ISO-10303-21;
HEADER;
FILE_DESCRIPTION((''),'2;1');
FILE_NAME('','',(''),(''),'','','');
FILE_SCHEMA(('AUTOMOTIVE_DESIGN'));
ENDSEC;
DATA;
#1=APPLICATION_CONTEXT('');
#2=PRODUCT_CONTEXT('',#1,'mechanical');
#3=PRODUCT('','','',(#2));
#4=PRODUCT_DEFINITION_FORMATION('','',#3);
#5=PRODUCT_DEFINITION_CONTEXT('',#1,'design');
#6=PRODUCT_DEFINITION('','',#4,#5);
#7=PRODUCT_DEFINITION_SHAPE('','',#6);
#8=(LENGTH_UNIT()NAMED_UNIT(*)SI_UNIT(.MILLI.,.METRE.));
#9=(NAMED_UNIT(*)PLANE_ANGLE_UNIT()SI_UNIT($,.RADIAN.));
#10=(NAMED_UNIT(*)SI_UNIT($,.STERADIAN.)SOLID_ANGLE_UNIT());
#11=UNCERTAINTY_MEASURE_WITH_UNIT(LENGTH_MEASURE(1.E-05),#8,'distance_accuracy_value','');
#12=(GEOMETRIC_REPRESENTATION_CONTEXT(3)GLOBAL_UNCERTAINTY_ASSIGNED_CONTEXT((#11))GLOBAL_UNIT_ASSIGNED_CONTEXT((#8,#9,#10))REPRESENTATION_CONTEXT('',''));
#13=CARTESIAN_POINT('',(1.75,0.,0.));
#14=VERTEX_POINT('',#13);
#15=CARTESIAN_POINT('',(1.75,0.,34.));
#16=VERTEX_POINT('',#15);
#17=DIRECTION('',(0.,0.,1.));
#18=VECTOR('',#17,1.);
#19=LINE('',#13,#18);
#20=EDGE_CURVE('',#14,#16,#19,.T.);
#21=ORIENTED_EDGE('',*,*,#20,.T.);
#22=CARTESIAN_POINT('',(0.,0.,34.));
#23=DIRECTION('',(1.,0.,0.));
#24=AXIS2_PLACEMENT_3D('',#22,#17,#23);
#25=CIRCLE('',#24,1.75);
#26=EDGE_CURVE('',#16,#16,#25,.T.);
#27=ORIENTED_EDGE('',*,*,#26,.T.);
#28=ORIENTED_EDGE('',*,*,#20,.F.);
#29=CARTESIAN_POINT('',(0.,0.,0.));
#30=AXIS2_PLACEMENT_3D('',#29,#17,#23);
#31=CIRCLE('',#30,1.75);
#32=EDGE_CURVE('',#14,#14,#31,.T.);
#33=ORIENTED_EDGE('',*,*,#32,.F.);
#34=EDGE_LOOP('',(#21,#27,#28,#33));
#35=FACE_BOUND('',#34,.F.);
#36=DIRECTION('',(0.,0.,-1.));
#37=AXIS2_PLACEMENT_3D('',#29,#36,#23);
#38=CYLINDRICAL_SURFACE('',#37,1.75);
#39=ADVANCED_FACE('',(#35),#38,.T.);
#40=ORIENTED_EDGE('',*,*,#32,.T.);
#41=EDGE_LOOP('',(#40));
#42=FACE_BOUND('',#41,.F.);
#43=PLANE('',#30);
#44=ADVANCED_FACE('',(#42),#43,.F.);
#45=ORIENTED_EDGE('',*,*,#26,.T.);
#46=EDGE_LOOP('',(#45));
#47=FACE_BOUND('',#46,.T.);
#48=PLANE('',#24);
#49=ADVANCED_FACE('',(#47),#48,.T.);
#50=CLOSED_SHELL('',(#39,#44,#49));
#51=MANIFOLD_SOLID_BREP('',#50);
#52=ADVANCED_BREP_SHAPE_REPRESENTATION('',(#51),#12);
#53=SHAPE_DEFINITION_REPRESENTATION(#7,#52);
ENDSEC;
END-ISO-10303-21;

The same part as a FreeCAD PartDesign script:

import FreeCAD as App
import Part
import Sketcher

doc = App.newDocument("Part")
body = doc.addObject("PartDesign::Body", "Body")

# Sketch on XY plane
sketch1 = body.newObject("Sketcher::SketchObject", "Sketch")
sketch1.AttachmentSupport = (doc.getObject("XY_Plane"), [""])
sketch1.MapMode = "FlatFace"
sketch1.addGeometry(Part.Circle(App.Vector(0, 0, 0), App.Vector(0, 0, 1), 1.8), False)
sketch1.addConstraint([
    Sketcher.Constraint("Coincident", 0, 3, -1, 1),
    Sketcher.Constraint("Diameter", 0, 3.5),
])
pad1 = body.newObject("PartDesign::Pad", "Pad")
pad1.Profile = sketch1
pad1.Length = 34

doc.recompute()
